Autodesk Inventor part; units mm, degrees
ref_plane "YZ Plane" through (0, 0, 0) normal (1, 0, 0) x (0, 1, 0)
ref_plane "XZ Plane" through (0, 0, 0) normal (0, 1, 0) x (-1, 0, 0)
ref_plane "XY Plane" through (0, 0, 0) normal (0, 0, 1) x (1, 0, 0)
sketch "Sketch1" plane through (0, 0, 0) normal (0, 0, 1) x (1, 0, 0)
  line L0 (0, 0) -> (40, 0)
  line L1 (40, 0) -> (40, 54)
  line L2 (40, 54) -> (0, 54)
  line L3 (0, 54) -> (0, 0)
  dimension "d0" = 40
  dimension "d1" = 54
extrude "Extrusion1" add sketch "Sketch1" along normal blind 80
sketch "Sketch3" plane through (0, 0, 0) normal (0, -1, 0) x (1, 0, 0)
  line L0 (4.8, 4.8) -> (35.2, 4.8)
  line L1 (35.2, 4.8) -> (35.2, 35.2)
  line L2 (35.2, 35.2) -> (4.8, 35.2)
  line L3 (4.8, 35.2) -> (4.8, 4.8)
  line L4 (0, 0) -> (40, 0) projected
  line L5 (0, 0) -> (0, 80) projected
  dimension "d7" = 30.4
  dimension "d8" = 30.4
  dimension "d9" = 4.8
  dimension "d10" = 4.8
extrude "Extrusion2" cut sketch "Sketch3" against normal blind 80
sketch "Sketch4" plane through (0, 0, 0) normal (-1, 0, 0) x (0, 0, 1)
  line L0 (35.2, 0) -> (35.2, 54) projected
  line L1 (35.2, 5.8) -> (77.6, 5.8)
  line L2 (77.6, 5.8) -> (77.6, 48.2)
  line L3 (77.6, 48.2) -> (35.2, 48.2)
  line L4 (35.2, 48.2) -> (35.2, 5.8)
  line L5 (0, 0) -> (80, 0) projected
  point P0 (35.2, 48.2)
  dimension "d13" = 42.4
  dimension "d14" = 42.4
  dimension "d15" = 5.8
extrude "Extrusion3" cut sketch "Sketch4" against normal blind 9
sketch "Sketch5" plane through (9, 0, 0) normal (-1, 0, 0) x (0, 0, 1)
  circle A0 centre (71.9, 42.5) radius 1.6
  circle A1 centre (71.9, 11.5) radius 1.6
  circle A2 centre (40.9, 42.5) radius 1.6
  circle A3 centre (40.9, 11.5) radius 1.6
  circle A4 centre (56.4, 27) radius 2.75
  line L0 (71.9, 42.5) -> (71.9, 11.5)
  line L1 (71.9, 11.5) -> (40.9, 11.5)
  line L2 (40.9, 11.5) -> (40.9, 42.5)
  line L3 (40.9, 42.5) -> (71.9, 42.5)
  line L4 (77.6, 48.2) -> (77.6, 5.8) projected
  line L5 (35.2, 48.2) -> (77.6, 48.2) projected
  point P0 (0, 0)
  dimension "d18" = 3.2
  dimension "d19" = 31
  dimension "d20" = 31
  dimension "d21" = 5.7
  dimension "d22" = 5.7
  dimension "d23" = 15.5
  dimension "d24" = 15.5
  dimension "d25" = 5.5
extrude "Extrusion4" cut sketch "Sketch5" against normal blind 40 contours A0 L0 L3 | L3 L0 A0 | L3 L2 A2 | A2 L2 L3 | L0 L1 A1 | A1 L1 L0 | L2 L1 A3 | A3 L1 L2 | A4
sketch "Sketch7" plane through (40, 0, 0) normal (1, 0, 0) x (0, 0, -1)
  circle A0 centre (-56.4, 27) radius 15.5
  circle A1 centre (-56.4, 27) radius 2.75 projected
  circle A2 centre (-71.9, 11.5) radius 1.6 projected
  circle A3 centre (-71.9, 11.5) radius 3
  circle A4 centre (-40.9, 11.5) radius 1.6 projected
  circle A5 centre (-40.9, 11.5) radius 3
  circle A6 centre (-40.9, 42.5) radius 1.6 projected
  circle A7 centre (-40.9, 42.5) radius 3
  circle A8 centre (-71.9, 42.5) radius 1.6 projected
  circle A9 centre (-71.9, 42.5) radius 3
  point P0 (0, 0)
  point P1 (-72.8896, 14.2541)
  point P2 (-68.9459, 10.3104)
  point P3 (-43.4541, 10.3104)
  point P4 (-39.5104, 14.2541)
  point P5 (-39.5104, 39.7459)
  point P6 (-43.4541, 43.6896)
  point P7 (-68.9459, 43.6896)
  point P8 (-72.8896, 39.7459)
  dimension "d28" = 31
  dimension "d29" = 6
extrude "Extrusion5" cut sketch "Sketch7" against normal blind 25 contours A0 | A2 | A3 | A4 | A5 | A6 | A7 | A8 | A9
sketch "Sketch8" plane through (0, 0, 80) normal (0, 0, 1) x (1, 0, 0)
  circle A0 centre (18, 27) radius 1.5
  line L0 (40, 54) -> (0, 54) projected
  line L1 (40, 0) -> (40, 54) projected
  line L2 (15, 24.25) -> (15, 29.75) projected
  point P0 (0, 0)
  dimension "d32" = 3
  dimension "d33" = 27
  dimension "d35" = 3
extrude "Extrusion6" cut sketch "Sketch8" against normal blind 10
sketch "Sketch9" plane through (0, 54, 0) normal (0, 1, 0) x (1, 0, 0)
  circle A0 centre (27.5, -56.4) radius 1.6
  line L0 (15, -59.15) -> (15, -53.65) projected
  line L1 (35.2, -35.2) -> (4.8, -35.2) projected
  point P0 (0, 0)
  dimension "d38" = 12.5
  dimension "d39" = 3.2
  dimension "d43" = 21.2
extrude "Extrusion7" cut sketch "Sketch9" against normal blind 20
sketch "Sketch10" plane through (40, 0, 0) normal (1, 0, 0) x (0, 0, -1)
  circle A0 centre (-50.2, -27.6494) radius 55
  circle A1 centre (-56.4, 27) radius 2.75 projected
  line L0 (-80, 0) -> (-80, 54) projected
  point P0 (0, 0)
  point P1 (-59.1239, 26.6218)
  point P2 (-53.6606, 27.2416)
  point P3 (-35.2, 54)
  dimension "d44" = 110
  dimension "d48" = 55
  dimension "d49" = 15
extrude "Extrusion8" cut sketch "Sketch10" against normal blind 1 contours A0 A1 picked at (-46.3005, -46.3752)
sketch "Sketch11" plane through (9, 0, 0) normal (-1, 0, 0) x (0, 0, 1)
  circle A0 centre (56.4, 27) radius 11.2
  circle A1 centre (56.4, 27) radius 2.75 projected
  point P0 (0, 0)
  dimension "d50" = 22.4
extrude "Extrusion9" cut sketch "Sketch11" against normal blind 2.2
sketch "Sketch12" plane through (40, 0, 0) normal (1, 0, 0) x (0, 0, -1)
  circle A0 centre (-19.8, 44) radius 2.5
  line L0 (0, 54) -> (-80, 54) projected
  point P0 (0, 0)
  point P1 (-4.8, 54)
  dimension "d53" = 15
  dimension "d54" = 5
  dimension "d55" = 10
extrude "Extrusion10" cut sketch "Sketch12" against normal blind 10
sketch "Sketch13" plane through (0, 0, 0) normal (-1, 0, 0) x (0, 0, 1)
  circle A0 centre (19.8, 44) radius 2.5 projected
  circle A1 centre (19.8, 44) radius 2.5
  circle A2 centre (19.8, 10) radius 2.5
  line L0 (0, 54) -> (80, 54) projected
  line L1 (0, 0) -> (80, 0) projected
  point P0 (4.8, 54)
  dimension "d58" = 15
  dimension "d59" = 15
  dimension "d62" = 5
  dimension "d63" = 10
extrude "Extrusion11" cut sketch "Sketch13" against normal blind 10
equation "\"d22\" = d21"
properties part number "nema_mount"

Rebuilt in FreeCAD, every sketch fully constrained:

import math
import FreeCAD as App
import Part
import Sketcher

V = App.Vector

doc = App.newDocument("Part")
body = doc.addObject("PartDesign::Body", "Body")

sketch1 = body.newObject("Sketcher::SketchObject", "Sketch")
sketch1.AttachmentSupport = (doc.getObject("XY_Plane"), [""])
sketch1.MapMode = "FlatFace"
sketch1.addGeometry(Part.LineSegment(V(0, 54, 0), V(0, 0, 0)), False)
sketch1.addGeometry(Part.LineSegment(V(0, 0, 0), V(40, 0, 0)), False)
sketch1.addGeometry(Part.LineSegment(V(40, 0, 0), V(40, 54, 0)), False)
sketch1.addGeometry(Part.LineSegment(V(40, 54, 0), V(0, 54, 0)), False)
sketch1.addConstraint(Sketcher.Constraint("Coincident", 0, 2, 1, 1))
sketch1.addConstraint(Sketcher.Constraint("Coincident", 1, 2, 2, 1))
sketch1.addConstraint(Sketcher.Constraint("Coincident", 2, 2, 3, 1))
sketch1.addConstraint(Sketcher.Constraint("Coincident", 3, 2, 0, 1))
sketch1.addConstraint(Sketcher.Constraint("Vertical", 0))
sketch1.addConstraint(Sketcher.Constraint("Horizontal", 1))
sketch1.addConstraint(Sketcher.Constraint("Vertical", 2))
sketch1.addConstraint(Sketcher.Constraint("Horizontal", 3))
sketch1.addConstraint(Sketcher.Constraint("Coincident", 0, 2, -1, 1))
sketch1.addConstraint(Sketcher.Constraint("DistanceX", 1, 1, 1, 2, 40.0))
sketch1.addConstraint(Sketcher.Constraint("DistanceY", 0, 2, 0, 1, 54.0))
pad1 = body.newObject("PartDesign::Pad", "Pad")
pad1.Profile = sketch1
pad1.Length = 80

sketch2 = body.newObject("Sketcher::SketchObject", "Sketch001")
sketch2.AttachmentSupport = (doc.getObject("XZ_Plane"), [""])
sketch2.MapMode = "FlatFace"
sketch2.addGeometry(Part.LineSegment(V(4.8, 35.2, 0), V(4.8, 4.8, 0)), False)
sketch2.addGeometry(Part.LineSegment(V(4.8, 4.8, 0), V(35.2, 4.8, 0)), False)
sketch2.addGeometry(Part.LineSegment(V(35.2, 4.8, 0), V(35.2, 35.2, 0)), False)
sketch2.addGeometry(Part.LineSegment(V(35.2, 35.2, 0), V(4.8, 35.2, 0)), False)
sketch2.addConstraint(Sketcher.Constraint("Coincident", 0, 2, 1, 1))
sketch2.addConstraint(Sketcher.Constraint("Coincident", 1, 2, 2, 1))
sketch2.addConstraint(Sketcher.Constraint("Coincident", 2, 2, 3, 1))
sketch2.addConstraint(Sketcher.Constraint("Coincident", 3, 2, 0, 1))
sketch2.addConstraint(Sketcher.Constraint("Vertical", 0))
sketch2.addConstraint(Sketcher.Constraint("Horizontal", 1))
sketch2.addConstraint(Sketcher.Constraint("Vertical", 2))
sketch2.addConstraint(Sketcher.Constraint("Horizontal", 3))
sketch2.addConstraint(Sketcher.Constraint("Equal", 3, 0))
sketch2.addConstraint(Sketcher.Constraint("DistanceX", 1, 1, 1, 2, 30.4))
sketch2.addConstraint(Sketcher.Constraint("DistanceX", -1, 1, 0, 2, 4.8))
sketch2.addConstraint(Sketcher.Constraint("DistanceY", -1, 1, 0, 2, 4.8))
pocket1 = body.newObject("PartDesign::Pocket", "Pocket")
pocket1.Profile = sketch2
pocket1.Length = 80

sketch3 = body.newObject("Sketcher::SketchObject", "Sketch002")
sketch3.AttachmentSupport = (doc.getObject("YZ_Plane"), [""])
sketch3.MapMode = "FlatFace"
sketch3.addGeometry(Part.LineSegment(V(48.2, 35.2, 0), V(5.8, 35.2, 0)), False)
sketch3.addGeometry(Part.LineSegment(V(5.8, 35.2, 0), V(5.8, 77.6, 0)), False)
sketch3.addGeometry(Part.LineSegment(V(5.8, 77.6, 0), V(48.2, 77.6, 0)), False)
sketch3.addGeometry(Part.LineSegment(V(48.2, 77.6, 0), V(48.2, 35.2, 0)), False)
sketch3.addConstraint(Sketcher.Constraint("Coincident", 0, 2, 1, 1))
sketch3.addConstraint(Sketcher.Constraint("Coincident", 1, 2, 2, 1))
sketch3.addConstraint(Sketcher.Constraint("Coincident", 2, 2, 3, 1))
sketch3.addConstraint(Sketcher.Constraint("Coincident", 3, 2, 0, 1))
sketch3.addConstraint(Sketcher.Constraint("Horizontal", 0))
sketch3.addConstraint(Sketcher.Constraint("Vertical", 1))
sketch3.addConstraint(Sketcher.Constraint("Horizontal", 2))
sketch3.addConstraint(Sketcher.Constraint("Vertical", 3))
sketch3.addConstraint(Sketcher.Constraint("Equal", 2, 1))
sketch3.addConstraint(Sketcher.Constraint("DistanceX", 0, 2, 0, 1, 42.4))
sketch3.addConstraint(Sketcher.Constraint("DistanceX", -1, 1, 0, 2, 5.8))
sketch3.addConstraint(Sketcher.Constraint("DistanceY", -1, 1, 0, 2, 35.2))
pocket2 = body.newObject("PartDesign::Pocket", "Pocket001")
pocket2.Profile = sketch3
pocket2.Length = 9
pocket2.Reversed = True

sketch4 = body.newObject("Sketcher::SketchObject", "Sketch003")
sketch4.AttachmentSupport = (doc.getObject("YZ_Plane"), [""])
sketch4.MapMode = "FlatFace"
sketch4.AttachmentOffset = App.Placement(V(0, 0, 9), App.Rotation())
sketch4.addGeometry(Part.Circle(V(42.5, 71.9, 0), V(0, 0, 1), 1.6), False)
sketch4.addGeometry(Part.Circle(V(42.5, 40.9, 0), V(0, 0, 1), 1.6), False)
sketch4.addGeometry(Part.Circle(V(11.5, 71.9, 0), V(0, 0, 1), 1.6), False)
sketch4.addGeometry(Part.Circle(V(11.5, 40.9, 0), V(0, 0, 1), 1.6), False)
sketch4.addGeometry(Part.Circle(V(27, 56.4, 0), V(0, 0, 1), 2.75), False)
sketch4.addConstraint(Sketcher.Constraint("Equal", 0, 1))
sketch4.addConstraint(Sketcher.Constraint("Equal", 1, 2))
sketch4.addConstraint(Sketcher.Constraint("Equal", 2, 3))
sketch4.addConstraint(Sketcher.Constraint("Horizontal", 0, 3, 2, 3))
sketch4.addConstraint(Sketcher.Constraint("Horizontal", 1, 3, 3, 3))
sketch4.addConstraint(Sketcher.Constraint("Vertical", 0, 3, 1, 3))
sketch4.addConstraint(Sketcher.Constraint("Vertical", 2, 3, 3, 3))
sketch4.addConstraint(Sketcher.Constraint("Diameter", 0, 3.2))
sketch4.addConstraint(Sketcher.Constraint("Diameter", 4, 5.5))
sketch4.addConstraint(Sketcher.Constraint("DistanceY", 1, 3, 0, 3, 31.0))
sketch4.addConstraint(Sketcher.Constraint("DistanceX", 2, 3, 0, 3, 31.0))
sketch4.addConstraint(Sketcher.Constraint("DistanceX", 4, 3, 1, 3, 15.5))
sketch4.addConstraint(Sketcher.Constraint("DistanceY", 1, 3, 4, 3, 15.5))
sketch4.addConstraint(Sketcher.Constraint("DistanceX", -1, 1, 4, 3, 27.0))
sketch4.addConstraint(Sketcher.Constraint("DistanceY", -1, 1, 0, 3, 71.9))
pocket3 = body.newObject("PartDesign::Pocket", "Pocket002")
pocket3.Profile = sketch4
pocket3.Length = 40
pocket3.Reversed = True

sketch5 = body.newObject("Sketcher::SketchObject", "Sketch004")
sketch5.AttachmentSupport = (doc.getObject("YZ_Plane"), [""])
sketch5.MapMode = "FlatFace"
sketch5.AttachmentOffset = App.Placement(V(0, 0, 40), App.Rotation())
sketch5.addGeometry(Part.Circle(V(27, 56.4, 0), V(0, 0, 1), 15.5), False)
sketch5.addGeometry(Part.Circle(V(27, 56.4, 0), V(0, 0, 1), 2.75), False)
sketch5.addGeometry(Part.Circle(V(11.5, 71.9, 0), V(0, 0, 1), 3), False)
sketch5.addGeometry(Part.Circle(V(11.5, 40.9, 0), V(0, 0, 1), 3), False)
sketch5.addGeometry(Part.Circle(V(42.5, 40.9, 0), V(0, 0, 1), 3), False)
sketch5.addGeometry(Part.Circle(V(42.5, 71.9, 0), V(0, 0, 1), 3), False)
sketch5.addConstraint(Sketcher.Constraint("Coincident", 1, 3, 0, 3))
sketch5.addConstraint(Sketcher.Constraint("Equal", 2, 3))
sketch5.addConstraint(Sketcher.Constraint("Equal", 3, 4))
sketch5.addConstraint(Sketcher.Constraint("Equal", 4, 5))
sketch5.addConstraint(Sketcher.Constraint("Horizontal", 3, 3, 4, 3))
sketch5.addConstraint(Sketcher.Constraint("Horizontal", 2, 3, 5, 3))
sketch5.addConstraint(Sketcher.Constraint("Vertical", 2, 3, 3, 3))
sketch5.addConstraint(Sketcher.Constraint("Vertical", 4, 3, 5, 3))
sketch5.addConstraint(Sketcher.Constraint("Diameter", 0, 31.0))
sketch5.addConstraint(Sketcher.Constraint("Diameter", 2, 6.0))
sketch5.addConstraint(Sketcher.Constraint("DistanceY", 3, 3, 2, 3, 31.0))
sketch5.addConstraint(Sketcher.Constraint("DistanceX", 3, 3, 4, 3, 31.0))
sketch5.addConstraint(Sketcher.Constraint("Diameter", 1, 5.5))
sketch5.addConstraint(Sketcher.Constraint("DistanceX", -1, 1, 0, 3, 27.0))
sketch5.addConstraint(Sketcher.Constraint("DistanceY", -1, 1, 0, 3, 56.4))
sketch5.addConstraint(Sketcher.Constraint("DistanceX", -1, 1, 2, 3, 11.5))
sketch5.addConstraint(Sketcher.Constraint("DistanceY", -1, 1, 2, 3, 71.9))
pocket4 = body.newObject("PartDesign::Pocket", "Pocket003")
pocket4.Profile = sketch5
pocket4.Length = 25

sketch6 = body.newObject("Sketcher::SketchObject", "Sketch005")
sketch6.AttachmentSupport = (doc.getObject("XY_Plane"), [""])
sketch6.MapMode = "FlatFace"
sketch6.AttachmentOffset = App.Placement(V(0, 0, 80), App.Rotation())
sketch6.addGeometry(Part.Circle(V(18, 27, 0), V(0, 0, 1), 1.5), False)
sketch6.addConstraint(Sketcher.Constraint("Diameter", 0, 3.0))
sketch6.addConstraint(Sketcher.Constraint("DistanceY", -1, 1, 0, 3, 27.0))
sketch6.addConstraint(Sketcher.Constraint("DistanceX", -1, 1, 0, 3, 18.0))
pocket5 = body.newObject("PartDesign::Pocket", "Pocket004")
pocket5.Profile = sketch6
pocket5.Length = 10

sketch7 = body.newObject("Sketcher::SketchObject", "Sketch006")
sketch7.AttachmentSupport = (doc.getObject("XZ_Plane"), [""])
sketch7.MapMode = "FlatFace"
sketch7.AttachmentOffset = App.Placement(V(0, 0, -54), App.Rotation())
sketch7.addGeometry(Part.Circle(V(27.5, 56.4, 0), V(0, 0, 1), 1.6), False)
sketch7.addConstraint(Sketcher.Constraint("Diameter", 0, 3.2))
sketch7.addConstraint(Sketcher.Constraint("DistanceX", -1, 1, 0, 3, 27.5))
sketch7.addConstraint(Sketcher.Constraint("DistanceY", -1, 1, 0, 3, 56.4))
pocket6 = body.newObject("PartDesign::Pocket", "Pocket005")
pocket6.Profile = sketch7
pocket6.Length = 20
pocket6.Reversed = True

sketch8 = body.newObject("Sketcher::SketchObject", "Sketch007")
sketch8.AttachmentSupport = (doc.getObject("YZ_Plane"), [""])
sketch8.MapMode = "FlatFace"
sketch8.AttachmentOffset = App.Placement(V(0, 0, 40), App.Rotation())
sketch8.addGeometry(Part.ArcOfCircle(Part.Circle(V(-27.6494, 50.2, 0), V(0, 0, 1), 55), math.radians(9.337646), math.radians(363.60747)), False)
sketch8.addGeometry(Part.ArcOfCircle(Part.Circle(V(27, 56.4, 0), V(0, 0, 1), 2.75), math.radians(97.904519), math.radians(275.040597)), False)
sketch8.addConstraint(Sketcher.Constraint("Coincident", 0, 1, 1, 1))
sketch8.addConstraint(Sketcher.Constraint("Coincident", 1, 2, 0, 2))
sketch8.addConstraint(Sketcher.Constraint("Radius", 0, 55.0))
sketch8.addConstraint(Sketcher.Constraint("Radius", 1, 2.75))
sketch8.addConstraint(Sketcher.Constraint("DistanceX", -1, 1, 1, 3, 27.0))
sketch8.addConstraint(Sketcher.Constraint("DistanceY", -1, 1, 0, 3, 50.2))
sketch8.addConstraint(Sketcher.Constraint("DistanceY", -1, 1, 1, 3, 56.4))
sketch8.addConstraint(Sketcher.Constraint("DistanceX", 0, 3, -1, 1, 27.6494))
pocket7 = body.newObject("PartDesign::Pocket", "Pocket006")
pocket7.Profile = sketch8
pocket7.Length = 1

sketch9 = body.newObject("Sketcher::SketchObject", "Sketch008")
sketch9.AttachmentSupport = (doc.getObject("YZ_Plane"), [""])
sketch9.MapMode = "FlatFace"
sketch9.AttachmentOffset = App.Placement(V(0, 0, 9), App.Rotation())
sketch9.addGeometry(Part.Circle(V(27, 56.4, 0), V(0, 0, 1), 11.2), False)
sketch9.addGeometry(Part.Circle(V(27, 56.4, 0), V(0, 0, 1), 2.75), False)
sketch9.addConstraint(Sketcher.Constraint("Coincident", 1, 3, 0, 3))
sketch9.addConstraint(Sketcher.Constraint("Diameter", 0, 22.4))
sketch9.addConstraint(Sketcher.Constraint("Diameter", 1, 5.5))
sketch9.addConstraint(Sketcher.Constraint("DistanceX", -1, 1, 0, 3, 27.0))
sketch9.addConstraint(Sketcher.Constraint("DistanceY", -1, 1, 0, 3, 56.4))
pocket8 = body.newObject("PartDesign::Pocket", "Pocket007")
pocket8.Profile = sketch9
pocket8.Length = 2.2
pocket8.Reversed = True

sketch10 = body.newObject("Sketcher::SketchObject", "Sketch009")
sketch10.AttachmentSupport = (doc.getObject("YZ_Plane"), [""])
sketch10.MapMode = "FlatFace"
sketch10.AttachmentOffset = App.Placement(V(0, 0, 40), App.Rotation())
sketch10.addGeometry(Part.Circle(V(44, 19.8, 0), V(0, 0, 1), 2.5), False)
sketch10.addConstraint(Sketcher.Constraint("Diameter", 0, 5.0))
sketch10.addConstraint(Sketcher.Constraint("DistanceX", -1, 1, 0, 3, 44.0))
sketch10.addConstraint(Sketcher.Constraint("DistanceY", -1, 1, 0, 3, 19.8))
pocket9 = body.newObject("PartDesign::Pocket", "Pocket008")
pocket9.Profile = sketch10
pocket9.Length = 10

sketch11 = body.newObject("Sketcher::SketchObject", "Sketch010")
sketch11.AttachmentSupport = (doc.getObject("YZ_Plane"), [""])
sketch11.MapMode = "FlatFace"
sketch11.addGeometry(Part.Circle(V(44, 19.8, 0), V(0, 0, 1), 2.5), False)
sketch11.addGeometry(Part.Circle(V(10, 19.8, 0), V(0, 0, 1), 2.5), False)
sketch11.addConstraint(Sketcher.Constraint("Equal", 0, 1))
sketch11.addConstraint(Sketcher.Constraint("Horizontal", 0, 3, 1, 3))
sketch11.addConstraint(Sketcher.Constraint("Diameter", 0, 5.0))
sketch11.addConstraint(Sketcher.Constraint("DistanceX", -1, 1, 1, 3, 10.0))
sketch11.addConstraint(Sketcher.Constraint("DistanceX", -1, 1, 0, 3, 44.0))
sketch11.addConstraint(Sketcher.Constraint("DistanceY", -1, 1, 0, 3, 19.8))
pocket10 = body.newObject("PartDesign::Pocket", "Pocket009")
pocket10.Profile = sketch11
pocket10.Length = 10
pocket10.Reversed = True

doc.recompute()
